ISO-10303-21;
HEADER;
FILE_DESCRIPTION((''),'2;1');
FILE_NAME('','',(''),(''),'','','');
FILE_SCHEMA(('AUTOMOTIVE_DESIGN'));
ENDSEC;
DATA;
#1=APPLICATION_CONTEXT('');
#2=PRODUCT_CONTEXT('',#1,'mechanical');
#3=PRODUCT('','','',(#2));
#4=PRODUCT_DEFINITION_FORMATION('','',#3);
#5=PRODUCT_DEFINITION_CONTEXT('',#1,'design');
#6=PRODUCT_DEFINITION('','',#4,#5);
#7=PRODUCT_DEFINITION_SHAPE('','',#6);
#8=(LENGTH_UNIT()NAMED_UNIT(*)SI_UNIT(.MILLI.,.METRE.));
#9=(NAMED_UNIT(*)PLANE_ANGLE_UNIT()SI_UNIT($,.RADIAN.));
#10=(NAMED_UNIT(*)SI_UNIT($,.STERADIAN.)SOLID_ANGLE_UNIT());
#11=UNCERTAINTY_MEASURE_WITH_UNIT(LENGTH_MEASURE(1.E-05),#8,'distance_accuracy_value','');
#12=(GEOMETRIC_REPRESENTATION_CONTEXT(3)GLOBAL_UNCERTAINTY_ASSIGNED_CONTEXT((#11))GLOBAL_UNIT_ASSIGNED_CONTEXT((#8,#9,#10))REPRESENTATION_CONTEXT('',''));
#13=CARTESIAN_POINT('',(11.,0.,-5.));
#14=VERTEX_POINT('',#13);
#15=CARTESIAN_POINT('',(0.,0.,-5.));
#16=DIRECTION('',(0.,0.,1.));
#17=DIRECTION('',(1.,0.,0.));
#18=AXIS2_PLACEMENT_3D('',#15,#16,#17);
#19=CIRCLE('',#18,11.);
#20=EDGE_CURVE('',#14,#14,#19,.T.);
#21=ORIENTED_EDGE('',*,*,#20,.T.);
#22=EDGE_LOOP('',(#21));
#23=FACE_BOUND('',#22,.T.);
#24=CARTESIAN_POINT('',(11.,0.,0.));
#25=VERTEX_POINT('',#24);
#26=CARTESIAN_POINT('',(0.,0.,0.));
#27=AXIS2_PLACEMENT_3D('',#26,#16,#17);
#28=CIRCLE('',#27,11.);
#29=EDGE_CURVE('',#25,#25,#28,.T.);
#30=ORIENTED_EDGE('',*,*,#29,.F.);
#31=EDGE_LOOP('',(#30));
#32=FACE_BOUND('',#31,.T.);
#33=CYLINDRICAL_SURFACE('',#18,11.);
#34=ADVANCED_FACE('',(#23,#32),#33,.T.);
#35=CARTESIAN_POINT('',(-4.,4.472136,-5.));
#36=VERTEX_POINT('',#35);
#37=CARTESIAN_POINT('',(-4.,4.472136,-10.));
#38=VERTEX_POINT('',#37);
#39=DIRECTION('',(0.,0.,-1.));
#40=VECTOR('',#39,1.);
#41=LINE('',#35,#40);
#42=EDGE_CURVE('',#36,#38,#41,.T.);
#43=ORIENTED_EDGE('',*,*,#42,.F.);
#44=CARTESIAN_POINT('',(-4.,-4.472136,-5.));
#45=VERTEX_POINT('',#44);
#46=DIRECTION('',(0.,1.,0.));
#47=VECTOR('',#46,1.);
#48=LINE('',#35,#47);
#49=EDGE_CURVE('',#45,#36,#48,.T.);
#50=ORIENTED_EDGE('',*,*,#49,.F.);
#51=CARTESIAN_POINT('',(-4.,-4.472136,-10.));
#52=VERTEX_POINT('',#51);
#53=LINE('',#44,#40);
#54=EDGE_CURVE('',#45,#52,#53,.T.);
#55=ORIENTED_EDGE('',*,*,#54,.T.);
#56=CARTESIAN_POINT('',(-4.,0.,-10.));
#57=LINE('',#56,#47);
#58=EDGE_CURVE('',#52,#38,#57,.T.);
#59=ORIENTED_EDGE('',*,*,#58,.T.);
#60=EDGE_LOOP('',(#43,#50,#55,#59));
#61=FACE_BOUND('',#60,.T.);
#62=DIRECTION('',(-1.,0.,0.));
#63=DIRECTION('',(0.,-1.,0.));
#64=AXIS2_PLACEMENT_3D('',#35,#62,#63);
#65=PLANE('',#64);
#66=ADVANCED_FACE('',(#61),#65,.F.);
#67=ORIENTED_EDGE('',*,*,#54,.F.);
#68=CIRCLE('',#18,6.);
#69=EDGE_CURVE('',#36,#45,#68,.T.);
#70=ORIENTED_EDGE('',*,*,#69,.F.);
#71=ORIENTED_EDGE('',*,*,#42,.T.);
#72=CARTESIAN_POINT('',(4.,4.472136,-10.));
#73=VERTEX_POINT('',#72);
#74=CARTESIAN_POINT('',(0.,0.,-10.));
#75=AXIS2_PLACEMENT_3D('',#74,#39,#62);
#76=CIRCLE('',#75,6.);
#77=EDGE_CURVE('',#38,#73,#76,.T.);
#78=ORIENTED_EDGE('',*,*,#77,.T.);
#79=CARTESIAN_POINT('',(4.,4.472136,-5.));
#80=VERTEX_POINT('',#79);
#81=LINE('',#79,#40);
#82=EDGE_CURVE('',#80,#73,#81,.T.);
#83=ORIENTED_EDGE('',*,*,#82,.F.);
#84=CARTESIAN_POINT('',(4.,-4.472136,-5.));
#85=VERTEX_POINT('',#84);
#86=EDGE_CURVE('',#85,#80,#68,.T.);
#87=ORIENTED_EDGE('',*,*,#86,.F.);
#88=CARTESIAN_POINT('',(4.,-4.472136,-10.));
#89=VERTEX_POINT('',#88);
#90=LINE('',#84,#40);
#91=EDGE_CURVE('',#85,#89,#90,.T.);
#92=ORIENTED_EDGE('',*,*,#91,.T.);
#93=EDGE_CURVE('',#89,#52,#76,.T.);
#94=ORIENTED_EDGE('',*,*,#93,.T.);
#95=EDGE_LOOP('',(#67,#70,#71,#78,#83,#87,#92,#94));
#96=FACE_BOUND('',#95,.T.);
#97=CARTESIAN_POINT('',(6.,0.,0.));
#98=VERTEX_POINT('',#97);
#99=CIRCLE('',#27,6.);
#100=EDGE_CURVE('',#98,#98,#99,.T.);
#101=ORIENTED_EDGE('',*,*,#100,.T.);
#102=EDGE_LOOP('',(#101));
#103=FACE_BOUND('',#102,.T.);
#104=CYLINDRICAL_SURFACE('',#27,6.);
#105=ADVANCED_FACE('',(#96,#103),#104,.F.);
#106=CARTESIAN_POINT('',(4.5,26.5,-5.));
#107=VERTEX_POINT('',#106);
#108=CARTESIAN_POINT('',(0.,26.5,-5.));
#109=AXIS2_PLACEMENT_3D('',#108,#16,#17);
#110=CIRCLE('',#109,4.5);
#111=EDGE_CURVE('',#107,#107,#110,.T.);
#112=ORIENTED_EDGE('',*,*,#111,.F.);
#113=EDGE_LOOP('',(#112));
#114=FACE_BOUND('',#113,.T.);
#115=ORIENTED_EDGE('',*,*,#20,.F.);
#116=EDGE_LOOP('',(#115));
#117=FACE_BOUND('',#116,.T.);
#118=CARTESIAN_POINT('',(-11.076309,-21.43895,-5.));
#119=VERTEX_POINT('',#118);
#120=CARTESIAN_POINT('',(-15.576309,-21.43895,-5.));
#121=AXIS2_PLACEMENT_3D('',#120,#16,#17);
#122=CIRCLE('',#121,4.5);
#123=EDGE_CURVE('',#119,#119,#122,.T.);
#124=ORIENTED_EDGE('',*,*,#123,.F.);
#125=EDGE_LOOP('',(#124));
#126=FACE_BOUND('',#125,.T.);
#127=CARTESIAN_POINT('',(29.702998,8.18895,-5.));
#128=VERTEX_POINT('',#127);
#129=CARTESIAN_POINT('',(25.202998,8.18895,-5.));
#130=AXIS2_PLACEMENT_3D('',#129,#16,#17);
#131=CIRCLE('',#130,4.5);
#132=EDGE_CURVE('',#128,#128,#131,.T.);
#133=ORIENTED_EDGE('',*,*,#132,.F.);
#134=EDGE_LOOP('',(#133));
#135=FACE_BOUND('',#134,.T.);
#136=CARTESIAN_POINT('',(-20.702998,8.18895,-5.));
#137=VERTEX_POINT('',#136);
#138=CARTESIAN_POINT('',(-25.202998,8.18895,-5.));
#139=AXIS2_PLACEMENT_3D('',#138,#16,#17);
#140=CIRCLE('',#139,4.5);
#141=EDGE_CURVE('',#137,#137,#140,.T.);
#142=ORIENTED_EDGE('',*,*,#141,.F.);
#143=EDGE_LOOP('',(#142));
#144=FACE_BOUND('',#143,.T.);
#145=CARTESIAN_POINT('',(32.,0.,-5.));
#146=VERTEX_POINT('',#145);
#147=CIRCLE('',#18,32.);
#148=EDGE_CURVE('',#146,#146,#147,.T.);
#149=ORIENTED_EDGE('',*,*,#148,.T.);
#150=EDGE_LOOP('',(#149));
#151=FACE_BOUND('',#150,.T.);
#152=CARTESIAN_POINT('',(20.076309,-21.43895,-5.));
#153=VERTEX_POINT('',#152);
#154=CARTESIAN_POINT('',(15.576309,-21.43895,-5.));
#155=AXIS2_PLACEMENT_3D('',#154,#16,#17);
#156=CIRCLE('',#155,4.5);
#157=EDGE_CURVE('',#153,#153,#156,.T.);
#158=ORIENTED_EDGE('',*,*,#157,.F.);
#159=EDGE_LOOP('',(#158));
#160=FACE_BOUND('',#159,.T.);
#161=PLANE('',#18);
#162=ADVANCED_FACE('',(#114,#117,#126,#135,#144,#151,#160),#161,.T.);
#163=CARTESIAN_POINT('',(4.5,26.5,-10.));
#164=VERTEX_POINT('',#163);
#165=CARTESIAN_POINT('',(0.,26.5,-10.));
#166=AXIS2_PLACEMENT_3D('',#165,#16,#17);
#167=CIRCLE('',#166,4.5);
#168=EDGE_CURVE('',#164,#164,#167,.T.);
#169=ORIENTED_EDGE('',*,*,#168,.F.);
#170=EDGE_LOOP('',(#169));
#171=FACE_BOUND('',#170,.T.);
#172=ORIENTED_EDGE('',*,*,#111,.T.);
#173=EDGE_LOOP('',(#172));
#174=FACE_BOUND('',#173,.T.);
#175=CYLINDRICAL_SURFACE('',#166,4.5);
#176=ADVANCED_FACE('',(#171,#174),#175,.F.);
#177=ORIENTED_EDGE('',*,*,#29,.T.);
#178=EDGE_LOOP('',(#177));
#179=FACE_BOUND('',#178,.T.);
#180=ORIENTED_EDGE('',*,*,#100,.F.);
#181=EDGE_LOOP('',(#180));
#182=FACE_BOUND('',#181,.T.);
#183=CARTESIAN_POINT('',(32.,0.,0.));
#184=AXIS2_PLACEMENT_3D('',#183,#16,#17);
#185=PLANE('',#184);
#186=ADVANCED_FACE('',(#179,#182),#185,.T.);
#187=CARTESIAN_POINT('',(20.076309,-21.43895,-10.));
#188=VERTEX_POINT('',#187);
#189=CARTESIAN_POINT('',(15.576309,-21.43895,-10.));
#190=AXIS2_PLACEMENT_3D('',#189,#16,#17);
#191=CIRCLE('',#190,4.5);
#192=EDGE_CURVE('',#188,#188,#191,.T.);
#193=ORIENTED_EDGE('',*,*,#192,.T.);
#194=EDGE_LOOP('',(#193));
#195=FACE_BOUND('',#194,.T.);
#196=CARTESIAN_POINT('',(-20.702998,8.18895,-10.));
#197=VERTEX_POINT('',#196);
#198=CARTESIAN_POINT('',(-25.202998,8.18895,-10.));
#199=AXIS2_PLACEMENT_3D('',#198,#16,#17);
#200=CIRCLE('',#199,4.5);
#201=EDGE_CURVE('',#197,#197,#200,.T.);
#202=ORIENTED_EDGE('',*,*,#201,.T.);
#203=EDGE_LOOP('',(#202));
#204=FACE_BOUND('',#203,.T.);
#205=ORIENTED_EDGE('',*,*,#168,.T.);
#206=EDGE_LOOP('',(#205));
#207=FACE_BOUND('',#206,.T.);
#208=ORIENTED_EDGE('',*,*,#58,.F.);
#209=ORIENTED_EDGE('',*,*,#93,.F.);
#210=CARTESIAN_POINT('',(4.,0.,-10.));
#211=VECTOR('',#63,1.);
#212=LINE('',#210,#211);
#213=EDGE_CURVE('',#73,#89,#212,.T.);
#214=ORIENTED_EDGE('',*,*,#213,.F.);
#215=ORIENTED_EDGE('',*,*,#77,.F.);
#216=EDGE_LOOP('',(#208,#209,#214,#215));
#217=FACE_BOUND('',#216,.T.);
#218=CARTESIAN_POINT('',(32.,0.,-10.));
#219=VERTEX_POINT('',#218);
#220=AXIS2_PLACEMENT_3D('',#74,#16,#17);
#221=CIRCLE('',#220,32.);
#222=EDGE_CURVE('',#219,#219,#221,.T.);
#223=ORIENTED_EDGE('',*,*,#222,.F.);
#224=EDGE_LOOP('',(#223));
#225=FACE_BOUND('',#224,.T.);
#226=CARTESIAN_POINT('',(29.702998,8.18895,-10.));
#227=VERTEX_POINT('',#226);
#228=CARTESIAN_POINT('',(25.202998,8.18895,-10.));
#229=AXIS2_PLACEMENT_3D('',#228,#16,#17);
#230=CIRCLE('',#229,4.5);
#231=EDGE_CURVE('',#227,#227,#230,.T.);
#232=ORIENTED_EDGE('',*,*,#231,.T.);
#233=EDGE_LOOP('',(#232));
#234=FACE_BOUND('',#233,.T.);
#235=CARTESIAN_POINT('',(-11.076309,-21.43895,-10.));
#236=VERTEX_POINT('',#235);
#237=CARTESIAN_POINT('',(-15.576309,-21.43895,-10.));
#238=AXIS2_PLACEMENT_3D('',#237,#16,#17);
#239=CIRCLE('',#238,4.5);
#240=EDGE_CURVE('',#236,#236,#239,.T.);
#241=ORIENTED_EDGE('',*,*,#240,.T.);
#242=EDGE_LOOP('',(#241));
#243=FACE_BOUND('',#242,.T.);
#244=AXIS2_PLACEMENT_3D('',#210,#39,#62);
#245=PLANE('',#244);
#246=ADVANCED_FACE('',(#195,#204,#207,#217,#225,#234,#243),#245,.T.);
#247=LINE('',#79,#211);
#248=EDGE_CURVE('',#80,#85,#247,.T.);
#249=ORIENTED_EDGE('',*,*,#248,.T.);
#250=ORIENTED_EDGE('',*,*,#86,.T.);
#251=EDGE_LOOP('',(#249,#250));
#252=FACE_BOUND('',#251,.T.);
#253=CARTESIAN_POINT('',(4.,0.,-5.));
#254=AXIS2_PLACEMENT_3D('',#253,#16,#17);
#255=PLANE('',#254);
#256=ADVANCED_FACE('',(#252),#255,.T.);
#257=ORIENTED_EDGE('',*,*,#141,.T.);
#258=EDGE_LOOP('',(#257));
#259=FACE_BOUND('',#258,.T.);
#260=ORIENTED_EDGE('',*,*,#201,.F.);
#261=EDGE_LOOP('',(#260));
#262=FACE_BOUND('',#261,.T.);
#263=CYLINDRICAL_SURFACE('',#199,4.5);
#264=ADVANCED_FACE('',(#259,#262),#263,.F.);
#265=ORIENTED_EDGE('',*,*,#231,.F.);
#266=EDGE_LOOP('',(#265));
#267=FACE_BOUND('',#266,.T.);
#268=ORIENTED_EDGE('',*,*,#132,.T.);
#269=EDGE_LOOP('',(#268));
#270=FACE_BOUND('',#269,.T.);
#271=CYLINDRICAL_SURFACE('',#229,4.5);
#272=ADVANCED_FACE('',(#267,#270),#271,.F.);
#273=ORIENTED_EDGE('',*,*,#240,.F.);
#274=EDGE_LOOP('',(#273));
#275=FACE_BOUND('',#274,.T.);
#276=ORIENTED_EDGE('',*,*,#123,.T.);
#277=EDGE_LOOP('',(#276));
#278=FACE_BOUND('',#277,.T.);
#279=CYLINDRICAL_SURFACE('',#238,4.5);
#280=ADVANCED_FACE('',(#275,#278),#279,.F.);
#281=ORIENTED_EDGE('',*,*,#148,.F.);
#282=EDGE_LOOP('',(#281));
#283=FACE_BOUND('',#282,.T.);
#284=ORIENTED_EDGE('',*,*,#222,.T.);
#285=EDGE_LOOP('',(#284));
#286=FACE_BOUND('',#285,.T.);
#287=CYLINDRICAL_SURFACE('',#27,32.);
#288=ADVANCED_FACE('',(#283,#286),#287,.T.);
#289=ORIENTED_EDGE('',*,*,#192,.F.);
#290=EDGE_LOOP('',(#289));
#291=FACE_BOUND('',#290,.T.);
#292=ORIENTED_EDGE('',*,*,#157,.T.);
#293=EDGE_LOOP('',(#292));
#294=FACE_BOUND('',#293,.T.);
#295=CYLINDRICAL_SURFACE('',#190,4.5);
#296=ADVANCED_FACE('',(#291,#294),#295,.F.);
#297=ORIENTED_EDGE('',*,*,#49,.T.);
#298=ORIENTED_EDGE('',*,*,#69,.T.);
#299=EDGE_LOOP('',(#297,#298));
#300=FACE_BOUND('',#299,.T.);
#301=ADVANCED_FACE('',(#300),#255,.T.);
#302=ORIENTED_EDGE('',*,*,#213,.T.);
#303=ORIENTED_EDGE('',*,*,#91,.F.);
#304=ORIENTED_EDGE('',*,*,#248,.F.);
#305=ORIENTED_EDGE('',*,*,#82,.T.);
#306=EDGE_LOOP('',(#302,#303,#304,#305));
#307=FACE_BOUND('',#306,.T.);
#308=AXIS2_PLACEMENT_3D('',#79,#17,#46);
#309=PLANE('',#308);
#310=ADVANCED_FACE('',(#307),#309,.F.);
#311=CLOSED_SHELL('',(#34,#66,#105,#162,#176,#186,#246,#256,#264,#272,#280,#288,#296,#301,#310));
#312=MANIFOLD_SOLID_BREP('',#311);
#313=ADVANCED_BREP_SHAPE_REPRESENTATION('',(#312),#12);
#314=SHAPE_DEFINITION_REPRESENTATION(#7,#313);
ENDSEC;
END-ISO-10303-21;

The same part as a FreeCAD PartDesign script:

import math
import FreeCAD as App
import Part
import Sketcher
from FreeCAD import Vector
Q = App.Units.Quantity

doc = App.newDocument("Part")
body = doc.addObject("PartDesign::Body", "Body")

# Sketch on XZ plane
sketch1 = body.newObject("Sketcher::SketchObject", "Sketch")
sketch1.AttachmentSupport = (doc.getObject("XZ_Plane"), [""])
sketch1.MapMode = "FlatFace"
sketch1.addGeometry(Part.LineSegment(Vector(32, -10, 0), Vector(4, -10, 0)), False)
sketch1.addGeometry(Part.LineSegment(Vector(4, -10, 0), Vector(4, -5, 0)), False)
sketch1.addGeometry(Part.LineSegment(Vector(4, -5, 0), Vector(6, -5, 0)), False)
sketch1.addGeometry(Part.LineSegment(Vector(6, -5, 0), Vector(6, 0, 0)), False)
sketch1.addGeometry(Part.LineSegment(Vector(6, 0, 0), Vector(32, 0, 0)), False)
sketch1.addGeometry(Part.LineSegment(Vector(32, 0, 0), Vector(32, -10, 0)), False)
sketch1.addConstraint(Sketcher.Constraint("Coincident", 0, 2, 1, 1))
sketch1.addConstraint(Sketcher.Constraint("Coincident", 1, 2, 2, 1))
sketch1.addConstraint(Sketcher.Constraint("Coincident", 2, 2, 3, 1))
sketch1.addConstraint(Sketcher.Constraint("Coincident", 3, 2, 4, 1))
sketch1.addConstraint(Sketcher.Constraint("Coincident", 4, 2, 5, 1))
sketch1.addConstraint(Sketcher.Constraint("Coincident", 5, 2, 0, 1))
sketch1.addConstraint(Sketcher.Constraint("Horizontal", 0))
sketch1.addConstraint(Sketcher.Constraint("Vertical", 1))
sketch1.addConstraint(Sketcher.Constraint("Horizontal", 2))
sketch1.addConstraint(Sketcher.Constraint("Vertical", 3))
sketch1.addConstraint(Sketcher.Constraint("Horizontal", 4))
sketch1.addConstraint(Sketcher.Constraint("Vertical", 5))
sketch1.addConstraint(Sketcher.Constraint("PointOnObject", 3, 2, -1))
sketch1.addConstraint(Sketcher.Constraint("Equal", 1, 3))
sketch1.addConstraint(Sketcher.Constraint("DistanceX", 0, 2, 0, 1, Q("28 mm")))
sketch1.addConstraint(Sketcher.Constraint("DistanceX", 2, 1, 2, 2, Q("2 mm")))
sketch1.addConstraint(Sketcher.Constraint("DistanceY", 1, 1, 1, 2, Q("5 mm")))
sketch1.addConstraint(Sketcher.Constraint("DistanceX", -1, 1, 0, 2, Q("4 mm")))
revolution = body.newObject("PartDesign::Revolution", "Revolution")
revolution.Profile = sketch1
revolution.ReferenceAxis = (sketch1, ["V_Axis"])
revolution.Angle = 360

# Sketch on XY plane
sketch2 = body.newObject("Sketcher::SketchObject", "Sketch001")
sketch2.AttachmentSupport = (doc.getObject("XY_Plane"), [""])
sketch2.MapMode = "FlatFace"
sketch2.AttachmentOffset = App.Placement(Vector(0, 0, -10), App.Rotation())
sketch2.addGeometry(Part.LineSegment(Vector(4, 4, 0), Vector(4, -4, 0)), False)
sketch2.addGeometry(Part.ArcOfCircle(Part.Circle(Vector(0, 0, 0), Vector(0, 0, 1), 6), math.radians(-132), math.radians(-48)), False)
sketch2.addGeometry(Part.LineSegment(Vector(-4, -4, 0), Vector(-4, 4, 0)), False)
sketch2.addGeometry(Part.ArcOfCircle(Part.Circle(Vector(0, 0, 0), Vector(0, 0, 1), 6), math.radians(48), math.radians(132)), False)
sketch2.addConstraint(Sketcher.Constraint("Coincident", 0, 2, 1, 2))
sketch2.addConstraint(Sketcher.Constraint("Coincident", 1, 1, 2, 1))
sketch2.addConstraint(Sketcher.Constraint("Coincident", 2, 2, 3, 2))
sketch2.addConstraint(Sketcher.Constraint("Coincident", 3, 1, 0, 1))
sketch2.addConstraint(Sketcher.Constraint("Vertical", 0))
sketch2.addConstraint(Sketcher.Constraint("Vertical", 2))
sketch2.addConstraint(Sketcher.Constraint("Coincident", 1, 3, -1, 1))
sketch2.addConstraint(Sketcher.Constraint("Coincident", 3, 3, -1, 1))
sketch2.addConstraint(Sketcher.Constraint("Equal", 1, 3))
sketch2.addConstraint(Sketcher.Constraint("Horizontal", 0, 2, 1, 1))
sketch2.addConstraint(Sketcher.Constraint("Radius", 1, Q("6 mm")))
sketch2.addConstraint(Sketcher.Constraint("DistanceX", -1, 1, 0, 2, Q("4 mm")))
pocket1 = body.newObject("PartDesign::Pocket", "Pocket")
pocket1.Profile = sketch2
pocket1.Length = 5
pocket1.Reversed = True

# Sketch on XY plane
sketch3 = body.newObject("Sketcher::SketchObject", "Sketch002")
sketch3.AttachmentSupport = (doc.getObject("XY_Plane"), [""])
sketch3.MapMode = "FlatFace"
sketch3.addGeometry(Part.Circle(Vector(0, 0, 0), Vector(0, 0, 1), 32), False)
sketch3.addGeometry(Part.Circle(Vector(0, 0, 0), Vector(0, 0, 1), 11), False)
sketch3.addConstraint(Sketcher.Constraint("Coincident", 0, 3, -1, 1))
sketch3.addConstraint(Sketcher.Constraint("Coincident", 1, 3, -1, 1))
sketch3.addConstraint(Sketcher.Constraint("Diameter", 0, Q("64 mm")))
sketch3.addConstraint(Sketcher.Constraint("Diameter", 1, Q("22 mm")))
pocket2 = body.newObject("PartDesign::Pocket", "Pocket001")
pocket2.Profile = sketch3
pocket2.Length = 5

# Sketch on XY plane
sketch4 = body.newObject("Sketcher::SketchObject", "Sketch003")
sketch4.AttachmentSupport = (doc.getObject("XY_Plane"), [""])
sketch4.MapMode = "FlatFace"
sketch4.AttachmentOffset = App.Placement(Vector(0, 0, -5), App.Rotation())
sketch4.addGeometry(Part.Circle(Vector(0, 26.5, 0), Vector(0, 0, 1), 4.5), False)
sketch4.addGeometry(Part.Circle(Vector(25.2, 8.2, 0), Vector(0, 0, 1), 4.5), False)
sketch4.addGeometry(Part.Circle(Vector(15.6, -21.4, 0), Vector(0, 0, 1), 4.5), False)
sketch4.addGeometry(Part.Circle(Vector(-15.6, -21.4, 0), Vector(0, 0, 1), 4.5), False)
sketch4.addGeometry(Part.Circle(Vector(-25.2, 8.2, 0), Vector(0, 0, 1), 4.5), False)
sketch4.addConstraint(Sketcher.Constraint("Equal", 0, 1))
sketch4.addConstraint(Sketcher.Constraint("Equal", 1, 2))
sketch4.addConstraint(Sketcher.Constraint("Equal", 2, 3))
sketch4.addConstraint(Sketcher.Constraint("Equal", 3, 4))
sketch4.addConstraint(Sketcher.Constraint("Symmetric", 2, 3, 3, 3, -2))
sketch4.addConstraint(Sketcher.Constraint("Symmetric", 1, 3, 4, 3, -2))
sketch4.addConstraint(Sketcher.Constraint("PointOnObject", 0, 3, -2))
sketch4.addConstraint(Sketcher.Constraint("Diameter", 0, Q("9 mm")))
sketch4.addConstraint(Sketcher.Constraint("DistanceY", -1, 1, 0, 3, Q("26.5 mm")))
sketch4.addConstraint(Sketcher.Constraint("DistanceY", 2, 3, 1, 3, Q("29.627901 mm")))
sketch4.addConstraint(Sketcher.Constraint("DistanceY", -1, 1, 1, 3, Q("8.18895 mm")))
sketch4.addConstraint(Sketcher.Constraint("DistanceX", -1, 1, 2, 3, Q("15.576309 mm")))
sketch4.addConstraint(Sketcher.Constraint("DistanceX", 2, 3, 1, 3, Q("9.626688 mm")))
pocket3 = body.newObject("PartDesign::Pocket", "Pocket002")
pocket3.Profile = sketch4
pocket3.Length = 5

doc.recompute()
